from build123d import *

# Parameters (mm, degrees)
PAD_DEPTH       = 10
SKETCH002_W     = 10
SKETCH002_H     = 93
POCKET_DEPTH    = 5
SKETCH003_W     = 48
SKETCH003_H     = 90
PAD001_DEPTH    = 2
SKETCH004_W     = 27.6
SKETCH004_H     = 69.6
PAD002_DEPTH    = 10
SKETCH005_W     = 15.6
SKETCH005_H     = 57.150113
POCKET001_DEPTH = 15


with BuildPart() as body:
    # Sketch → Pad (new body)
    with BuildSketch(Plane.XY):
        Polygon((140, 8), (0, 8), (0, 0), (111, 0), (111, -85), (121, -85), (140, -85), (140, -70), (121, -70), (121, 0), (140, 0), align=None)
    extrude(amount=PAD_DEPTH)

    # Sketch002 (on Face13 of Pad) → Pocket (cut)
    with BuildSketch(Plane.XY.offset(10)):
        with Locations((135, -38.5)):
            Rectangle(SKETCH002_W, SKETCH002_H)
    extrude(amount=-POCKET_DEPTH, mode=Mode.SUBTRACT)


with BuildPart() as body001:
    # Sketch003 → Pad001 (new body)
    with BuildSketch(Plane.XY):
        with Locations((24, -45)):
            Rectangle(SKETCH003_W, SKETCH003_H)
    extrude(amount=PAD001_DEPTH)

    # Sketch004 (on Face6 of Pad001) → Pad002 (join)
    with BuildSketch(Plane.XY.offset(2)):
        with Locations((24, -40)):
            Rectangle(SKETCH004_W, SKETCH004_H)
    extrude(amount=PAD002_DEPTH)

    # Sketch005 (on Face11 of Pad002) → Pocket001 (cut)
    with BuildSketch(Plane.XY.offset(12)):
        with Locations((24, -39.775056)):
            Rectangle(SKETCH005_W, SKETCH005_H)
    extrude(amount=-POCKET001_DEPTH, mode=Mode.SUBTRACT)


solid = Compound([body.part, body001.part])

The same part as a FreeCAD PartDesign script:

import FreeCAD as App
import Part
import Sketcher

V = App.Vector
Q = App.Units.Quantity

doc = App.newDocument("Part")
body = doc.addObject("PartDesign::Body", "Body")

# Sketch on XY plane
sketch1 = body.newObject("Sketcher::SketchObject", "Sketch")
sketch1.AttachmentSupport = (doc.getObject("XY_Plane"), [""])
sketch1.MapMode = "FlatFace"
sketch1.addGeometry([
    Part.LineSegment(V(140, 8, 0), V(0, 8, 0)),  # 0
    Part.LineSegment(V(0, 8, 0), V(0, 0, 0)),  # 1
    Part.LineSegment(V(0, 0, 0), V(111, 0, 0)),  # 2
    Part.LineSegment(V(111, 0, 0), V(111, -85, 0)),  # 3
    Part.LineSegment(V(111, -85, 0), V(140, -85, 0)),  # 4
    Part.LineSegment(V(140, -85, 0), V(140, -70, 0)),  # 5
    Part.LineSegment(V(140, -70, 0), V(121, -70, 0)),  # 6
    Part.LineSegment(V(121, -70, 0), V(121, 0, 0)),  # 7
    Part.LineSegment(V(121, 0, 0), V(140, 0, 0)),  # 8
    Part.LineSegment(V(140, 0, 0), V(140, 8, 0)),  # 9
], False)
sketch1.addConstraint([
    Sketcher.Constraint("Coincident", 0, 2, 1, 1),
    Sketcher.Constraint("Coincident", 1, 2, 2, 1),
    Sketcher.Constraint("Coincident", 2, 2, 3, 1),
    Sketcher.Constraint("Coincident", 3, 2, 4, 1),
    Sketcher.Constraint("Coincident", 4, 2, 5, 1),
    Sketcher.Constraint("Coincident", 5, 2, 6, 1),
    Sketcher.Constraint("Coincident", 6, 2, 7, 1),
    Sketcher.Constraint("Coincident", 7, 2, 8, 1),
    Sketcher.Constraint("Coincident", 8, 2, 9, 1),
    Sketcher.Constraint("Coincident", 9, 2, 0, 1),
    Sketcher.Constraint("Horizontal", 0),
    Sketcher.Constraint("Vertical", 1),
    Sketcher.Constraint("Horizontal", 2),
    Sketcher.Constraint("Vertical", 3),
    Sketcher.Constraint("Horizontal", 4),
    Sketcher.Constraint("Vertical", 5),
    Sketcher.Constraint("Horizontal", 6),
    Sketcher.Constraint("Vertical", 7),
    Sketcher.Constraint("Horizontal", 8),
    Sketcher.Constraint("Vertical", 9),
    Sketcher.Constraint("Coincident", 1, 2, -1, 1),
    Sketcher.Constraint("PointOnObject", 7, 2, -1),
    Sketcher.Constraint("Vertical", 5, 2, 8, 2),
    Sketcher.Constraint("DistanceX", 0, 2, 0, 1, Q("140 mm")),
    Sketcher.Constraint("DistanceX", 2, 1, 2, 2, Q("111 mm")),
    Sketcher.Constraint("DistanceX", 6, 2, 6, 1, Q("19 mm")),
    Sketcher.Constraint("DistanceY", 1, 2, 1, 1, Q("8 mm")),
    Sketcher.Constraint("DistanceY", 3, 2, 3, 1, Q("85 mm")),
    Sketcher.Constraint("DistanceY", 5, 1, 5, 2, Q("15 mm")),
])
pad1 = body.newObject("PartDesign::Pad", "Pad")
pad1.Profile = sketch1
pad1.Length = 10

# Sketch on XY plane
sketch2 = body.newObject("Sketcher::SketchObject", "Sketch001")
sketch2.AttachmentSupport = (doc.getObject("XY_Plane"), [""])
sketch2.MapMode = "FlatFace"
sketch2.AttachmentOffset = App.Placement(V(0, 0, 10), App.Rotation())
sketch2.addGeometry([
    Part.LineSegment(V(130, 8, 0), V(130, -85, 0)),
    Part.LineSegment(V(130, -85, 0), V(140, -85, 0)),
    Part.LineSegment(V(140, -85, 0), V(140, 8, 0)),
    Part.LineSegment(V(140, 8, 0), V(130, 8, 0)),
], False)
sketch2.addConstraint([
    Sketcher.Constraint("Coincident", 0, 2, 1, 1),
    Sketcher.Constraint("Coincident", 1, 2, 2, 1),
    Sketcher.Constraint("Coincident", 2, 2, 3, 1),
    Sketcher.Constraint("Coincident", 3, 2, 0, 1),
    Sketcher.Constraint("Vertical", 0),
    Sketcher.Constraint("Horizontal", 1),
    Sketcher.Constraint("Vertical", 2),
    Sketcher.Constraint("Horizontal", 3),
    Sketcher.Constraint("DistanceX", 1, 1, 1, 2, Q("10 mm")),
    Sketcher.Constraint("DistanceY", 0, 2, 0, 1, Q("93 mm")),
    Sketcher.Constraint("DistanceX", -1, 1, 0, 2, Q("130 mm")),
    Sketcher.Constraint("DistanceY", 0, 2, -1, 1, Q("85 mm")),
])
pocket1 = body.newObject("PartDesign::Pocket", "Pocket")
pocket1.Profile = sketch2
pocket1.Length = 5
body2 = doc.addObject("PartDesign::Body", "Body001")

# Sketch on XY plane
sketch3 = body2.newObject("Sketcher::SketchObject", "Sketch002")
sketch3.AttachmentSupport = (doc.getObject("XY_Plane001"), [""])
sketch3.MapMode = "FlatFace"
sketch3.addGeometry([
    Part.LineSegment(V(0, 0, 0), V(0, -90, 0)),
    Part.LineSegment(V(0, -90, 0), V(48, -90, 0)),
    Part.LineSegment(V(48, -90, 0), V(48, 0, 0)),
    Part.LineSegment(V(48, 0, 0), V(0, 0, 0)),
], False)
sketch3.addConstraint([
    Sketcher.Constraint("Coincident", 0, 2, 1, 1),
    Sketcher.Constraint("Coincident", 1, 2, 2, 1),
    Sketcher.Constraint("Coincident", 2, 2, 3, 1),
    Sketcher.Constraint("Coincident", 3, 2, 0, 1),
    Sketcher.Constraint("Vertical", 0),
    Sketcher.Constraint("Horizontal", 1),
    Sketcher.Constraint("Vertical", 2),
    Sketcher.Constraint("Horizontal", 3),
    Sketcher.Constraint("Coincident", 3, 2, -1, 1),
    Sketcher.Constraint("DistanceX", 1, 1, 1, 2, Q("48 mm")),
    Sketcher.Constraint("DistanceY", 0, 2, 0, 1, Q("90 mm")),
])
pad2 = body2.newObject("PartDesign::Pad", "Pad001")
pad2.Profile = sketch3
pad2.Length = 2

# Sketch on XY plane
sketch4 = body2.newObject("Sketcher::SketchObject", "Sketch003")
sketch4.AttachmentSupport = (doc.getObject("XY_Plane001"), [""])
sketch4.MapMode = "FlatFace"
sketch4.AttachmentOffset = App.Placement(V(0, 0, 2), App.Rotation())
sketch4.addGeometry([
    Part.LineSegment(V(10, -5, 0), V(10, -75, 0)),
    Part.LineSegment(V(10, -75, 0), V(38, -75, 0)),
    Part.LineSegment(V(38, -75, 0), V(38, -5, 0)),
    Part.LineSegment(V(38, -5, 0), V(10, -5, 0)),
], False)
sketch4.addConstraint([
    Sketcher.Constraint("Coincident", 0, 2, 1, 1),
    Sketcher.Constraint("Coincident", 1, 2, 2, 1),
    Sketcher.Constraint("Coincident", 2, 2, 3, 1),
    Sketcher.Constraint("Coincident", 3, 2, 0, 1),
    Sketcher.Constraint("Vertical", 0),
    Sketcher.Constraint("Horizontal", 1),
    Sketcher.Constraint("Vertical", 2),
    Sketcher.Constraint("Horizontal", 3),
    Sketcher.Constraint("DistanceX", 1, 1, 1, 2, Q("27.6 mm")),
    Sketcher.Constraint("DistanceY", 0, 2, 0, 1, Q("69.6 mm")),
    Sketcher.Constraint("DistanceX", -1, 1, 0, 2, Q("10.2 mm")),
    Sketcher.Constraint("DistanceY", 0, 2, -1, 1, Q("74.8 mm")),
])
pad3 = body2.newObject("PartDesign::Pad", "Pad002")
pad3.Profile = sketch4
pad3.Length = 10

# Sketch on XY plane
sketch5 = body2.newObject("Sketcher::SketchObject", "Sketch004")
sketch5.AttachmentSupport = (doc.getObject("XY_Plane001"), [""])
sketch5.MapMode = "FlatFace"
sketch5.AttachmentOffset = App.Placement(V(0, 0, 12), App.Rotation())
sketch5.addGeometry([
    Part.LineSegment(V(16, -11, 0), V(16, -68, 0)),
    Part.LineSegment(V(16, -68, 0), V(32, -68, 0)),
    Part.LineSegment(V(32, -68, 0), V(32, -11, 0)),
    Part.LineSegment(V(32, -11, 0), V(16, -11, 0)),
], False)
sketch5.addConstraint([
    Sketcher.Constraint("Coincident", 0, 2, 1, 1),
    Sketcher.Constraint("Coincident", 1, 2, 2, 1),
    Sketcher.Constraint("Coincident", 2, 2, 3, 1),
    Sketcher.Constraint("Coincident", 3, 2, 0, 1),
    Sketcher.Constraint("Vertical", 0),
    Sketcher.Constraint("Horizontal", 1),
    Sketcher.Constraint("Vertical", 2),
    Sketcher.Constraint("Horizontal", 3),
    Sketcher.Constraint("DistanceX", 1, 1, 1, 2, Q("15.6 mm")),
    Sketcher.Constraint("DistanceX", -1, 1, 0, 2, Q("16.2 mm")),
    Sketcher.Constraint("DistanceY", 2, 2, -1, 1, Q("11.2 mm")),
    Sketcher.Constraint("DistanceY", 0, 2, 0, 1, Q("57.150113 mm")),
])
pocket2 = body2.newObject("PartDesign::Pocket", "Pocket001")
pocket2.Profile = sketch5
pocket2.Length = 15

doc.recompute()
